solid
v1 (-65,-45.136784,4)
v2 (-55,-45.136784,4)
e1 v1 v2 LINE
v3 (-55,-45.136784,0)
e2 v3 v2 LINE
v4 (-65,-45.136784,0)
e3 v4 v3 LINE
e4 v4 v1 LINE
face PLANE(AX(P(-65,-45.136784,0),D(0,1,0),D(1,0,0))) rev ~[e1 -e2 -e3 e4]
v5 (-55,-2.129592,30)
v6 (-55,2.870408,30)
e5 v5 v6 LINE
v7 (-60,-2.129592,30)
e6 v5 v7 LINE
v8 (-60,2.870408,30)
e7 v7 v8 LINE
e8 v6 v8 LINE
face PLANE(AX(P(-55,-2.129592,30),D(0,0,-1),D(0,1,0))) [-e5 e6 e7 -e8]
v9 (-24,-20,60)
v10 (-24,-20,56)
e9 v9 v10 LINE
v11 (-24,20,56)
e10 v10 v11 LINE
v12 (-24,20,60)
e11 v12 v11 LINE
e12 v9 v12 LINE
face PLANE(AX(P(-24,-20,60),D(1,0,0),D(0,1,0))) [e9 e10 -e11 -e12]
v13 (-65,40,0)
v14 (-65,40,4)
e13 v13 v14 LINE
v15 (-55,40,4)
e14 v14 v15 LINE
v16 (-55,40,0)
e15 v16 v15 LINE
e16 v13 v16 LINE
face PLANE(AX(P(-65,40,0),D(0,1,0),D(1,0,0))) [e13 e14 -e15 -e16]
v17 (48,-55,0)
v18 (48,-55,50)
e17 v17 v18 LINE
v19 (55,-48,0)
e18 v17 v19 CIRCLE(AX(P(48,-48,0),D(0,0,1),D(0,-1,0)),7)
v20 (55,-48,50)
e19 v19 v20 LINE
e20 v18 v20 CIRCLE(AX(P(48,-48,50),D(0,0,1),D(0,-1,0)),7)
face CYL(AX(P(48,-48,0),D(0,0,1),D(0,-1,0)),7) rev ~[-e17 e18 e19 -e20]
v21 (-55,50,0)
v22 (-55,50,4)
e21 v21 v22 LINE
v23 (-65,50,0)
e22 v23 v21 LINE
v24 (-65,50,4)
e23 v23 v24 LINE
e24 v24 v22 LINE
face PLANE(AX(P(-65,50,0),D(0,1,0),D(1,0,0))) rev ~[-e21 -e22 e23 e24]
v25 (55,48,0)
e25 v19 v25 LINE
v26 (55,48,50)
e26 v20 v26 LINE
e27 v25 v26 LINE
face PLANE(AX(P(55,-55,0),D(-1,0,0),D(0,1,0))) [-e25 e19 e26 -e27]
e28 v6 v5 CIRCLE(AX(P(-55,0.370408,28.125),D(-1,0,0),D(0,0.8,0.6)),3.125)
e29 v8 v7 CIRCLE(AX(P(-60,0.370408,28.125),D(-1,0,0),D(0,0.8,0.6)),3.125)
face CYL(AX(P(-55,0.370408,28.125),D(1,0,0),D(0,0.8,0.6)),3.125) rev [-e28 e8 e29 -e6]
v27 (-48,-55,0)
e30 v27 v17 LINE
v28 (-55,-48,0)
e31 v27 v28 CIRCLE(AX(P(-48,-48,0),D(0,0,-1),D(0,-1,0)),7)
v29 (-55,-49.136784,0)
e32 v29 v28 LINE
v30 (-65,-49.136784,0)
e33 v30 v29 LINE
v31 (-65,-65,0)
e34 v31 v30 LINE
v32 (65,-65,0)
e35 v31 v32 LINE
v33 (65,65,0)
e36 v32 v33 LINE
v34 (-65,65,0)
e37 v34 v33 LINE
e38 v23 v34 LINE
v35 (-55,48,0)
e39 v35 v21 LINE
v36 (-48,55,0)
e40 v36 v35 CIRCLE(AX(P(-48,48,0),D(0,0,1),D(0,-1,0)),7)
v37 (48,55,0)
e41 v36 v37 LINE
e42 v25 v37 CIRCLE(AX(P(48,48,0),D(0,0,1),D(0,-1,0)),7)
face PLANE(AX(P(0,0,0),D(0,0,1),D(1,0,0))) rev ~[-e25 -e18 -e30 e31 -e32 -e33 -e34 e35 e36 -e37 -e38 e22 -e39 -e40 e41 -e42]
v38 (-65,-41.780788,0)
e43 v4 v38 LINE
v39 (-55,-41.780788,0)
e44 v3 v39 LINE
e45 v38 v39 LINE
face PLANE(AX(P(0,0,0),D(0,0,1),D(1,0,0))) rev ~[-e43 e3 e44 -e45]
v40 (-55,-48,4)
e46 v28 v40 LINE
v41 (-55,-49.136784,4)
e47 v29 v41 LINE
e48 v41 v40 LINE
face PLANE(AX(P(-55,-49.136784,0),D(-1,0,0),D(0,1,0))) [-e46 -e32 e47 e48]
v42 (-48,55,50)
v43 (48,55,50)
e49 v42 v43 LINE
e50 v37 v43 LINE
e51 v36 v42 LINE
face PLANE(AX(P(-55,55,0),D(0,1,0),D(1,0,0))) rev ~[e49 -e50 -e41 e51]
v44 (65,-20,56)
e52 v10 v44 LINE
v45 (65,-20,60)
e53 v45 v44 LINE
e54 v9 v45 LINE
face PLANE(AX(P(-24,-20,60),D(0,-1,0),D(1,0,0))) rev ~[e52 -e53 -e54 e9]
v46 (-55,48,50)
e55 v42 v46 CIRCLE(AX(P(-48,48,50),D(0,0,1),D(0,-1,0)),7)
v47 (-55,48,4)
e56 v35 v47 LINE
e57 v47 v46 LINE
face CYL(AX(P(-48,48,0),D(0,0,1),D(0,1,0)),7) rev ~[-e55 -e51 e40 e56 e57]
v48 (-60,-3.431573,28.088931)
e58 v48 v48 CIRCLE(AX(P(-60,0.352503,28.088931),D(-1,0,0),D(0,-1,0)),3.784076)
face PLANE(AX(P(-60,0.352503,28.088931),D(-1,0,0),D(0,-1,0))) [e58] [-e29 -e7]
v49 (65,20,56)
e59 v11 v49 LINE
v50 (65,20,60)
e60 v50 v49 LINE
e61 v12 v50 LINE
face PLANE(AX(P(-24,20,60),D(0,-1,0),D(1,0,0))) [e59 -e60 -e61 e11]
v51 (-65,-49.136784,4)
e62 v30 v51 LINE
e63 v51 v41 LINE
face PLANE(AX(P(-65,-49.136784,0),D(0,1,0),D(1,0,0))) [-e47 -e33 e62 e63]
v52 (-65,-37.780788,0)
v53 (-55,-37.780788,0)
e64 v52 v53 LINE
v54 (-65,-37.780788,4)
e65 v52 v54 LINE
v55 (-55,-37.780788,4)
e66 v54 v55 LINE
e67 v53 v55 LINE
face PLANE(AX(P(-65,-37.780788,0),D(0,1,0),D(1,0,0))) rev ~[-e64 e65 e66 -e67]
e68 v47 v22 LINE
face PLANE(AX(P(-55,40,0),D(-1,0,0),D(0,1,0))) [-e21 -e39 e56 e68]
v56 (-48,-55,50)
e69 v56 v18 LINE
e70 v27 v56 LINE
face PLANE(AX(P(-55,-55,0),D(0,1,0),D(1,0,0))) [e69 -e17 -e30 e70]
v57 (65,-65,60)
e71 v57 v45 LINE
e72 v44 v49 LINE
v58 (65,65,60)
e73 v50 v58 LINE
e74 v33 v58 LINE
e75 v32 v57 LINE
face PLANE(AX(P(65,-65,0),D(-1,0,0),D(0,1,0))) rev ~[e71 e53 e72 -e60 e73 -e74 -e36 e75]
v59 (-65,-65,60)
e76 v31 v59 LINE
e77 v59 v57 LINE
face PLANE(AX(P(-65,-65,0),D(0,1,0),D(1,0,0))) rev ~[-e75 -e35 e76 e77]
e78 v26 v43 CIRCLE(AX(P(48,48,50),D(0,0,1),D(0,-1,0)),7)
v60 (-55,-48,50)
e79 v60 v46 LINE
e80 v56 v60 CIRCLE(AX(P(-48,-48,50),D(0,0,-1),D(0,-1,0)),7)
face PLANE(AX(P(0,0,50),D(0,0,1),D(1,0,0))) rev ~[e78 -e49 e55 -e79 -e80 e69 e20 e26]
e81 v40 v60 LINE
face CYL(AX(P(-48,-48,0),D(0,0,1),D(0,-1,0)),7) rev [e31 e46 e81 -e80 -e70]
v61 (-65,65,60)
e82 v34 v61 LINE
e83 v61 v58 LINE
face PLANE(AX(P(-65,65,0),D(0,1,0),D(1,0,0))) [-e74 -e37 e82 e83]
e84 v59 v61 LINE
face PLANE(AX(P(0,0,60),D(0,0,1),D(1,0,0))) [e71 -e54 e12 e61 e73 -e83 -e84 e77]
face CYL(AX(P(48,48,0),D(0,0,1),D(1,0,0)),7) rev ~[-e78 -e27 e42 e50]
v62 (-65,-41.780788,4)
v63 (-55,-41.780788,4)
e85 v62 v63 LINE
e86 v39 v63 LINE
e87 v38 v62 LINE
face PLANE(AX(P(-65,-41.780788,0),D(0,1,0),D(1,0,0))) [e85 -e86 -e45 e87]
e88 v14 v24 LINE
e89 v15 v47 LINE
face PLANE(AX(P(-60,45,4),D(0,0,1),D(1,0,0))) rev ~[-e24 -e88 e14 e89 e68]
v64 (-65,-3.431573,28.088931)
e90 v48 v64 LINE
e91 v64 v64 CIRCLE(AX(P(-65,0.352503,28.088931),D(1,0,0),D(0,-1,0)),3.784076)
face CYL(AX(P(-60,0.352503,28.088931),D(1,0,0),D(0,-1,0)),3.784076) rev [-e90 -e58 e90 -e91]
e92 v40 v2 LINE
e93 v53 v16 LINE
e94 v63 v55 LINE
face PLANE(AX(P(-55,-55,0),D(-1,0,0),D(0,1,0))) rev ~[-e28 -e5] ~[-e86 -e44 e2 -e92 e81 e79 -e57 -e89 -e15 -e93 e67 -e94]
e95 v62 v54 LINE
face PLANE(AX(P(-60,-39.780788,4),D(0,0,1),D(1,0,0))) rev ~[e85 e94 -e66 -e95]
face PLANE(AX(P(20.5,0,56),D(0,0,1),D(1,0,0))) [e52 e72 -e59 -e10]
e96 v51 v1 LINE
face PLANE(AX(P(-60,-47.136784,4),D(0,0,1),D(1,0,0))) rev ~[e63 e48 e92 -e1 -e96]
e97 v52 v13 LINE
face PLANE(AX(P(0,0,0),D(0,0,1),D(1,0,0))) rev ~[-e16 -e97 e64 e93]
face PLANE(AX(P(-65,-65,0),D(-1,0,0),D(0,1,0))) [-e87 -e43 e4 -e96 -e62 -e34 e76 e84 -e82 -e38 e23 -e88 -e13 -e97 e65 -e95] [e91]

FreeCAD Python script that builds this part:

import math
import FreeCAD as App
import Part
import Sketcher

V = App.Vector
Q = App.Units.Quantity


def edges_at(feature, points):
    """Names of the edges that pass closest to the given points."""
    edges = feature.Shape.Edges
    near = lambda p: min(range(len(edges)), key=lambda i: edges[i].distToShape(Part.Vertex(*p))[0])
    return sorted({f"Edge{near(p) + 1}" for p in points})


def add_polygon(sketch, points):
    """Adds a closed chain of lines whose ends are joined by coincident constraints."""
    first, n = sketch.GeometryCount, len(points)
    for a, b in zip(points, points[1:] + points[:1]):
        sketch.addGeometry(Part.LineSegment(App.Vector(*a, 0), App.Vector(*b, 0)), False)
    for i in range(n):
        sketch.addConstraint(Sketcher.Constraint("Coincident", first + i, 2, first + (i + 1) % n, 1))

doc = App.newDocument("Part")
body = doc.addObject("PartDesign::Body", "Body")

# Sketch on XY plane
sketch1 = body.newObject("Sketcher::SketchObject", "Sketch")
sketch1.AttachmentSupport = (doc.getObject("XY_Plane"), [""])
sketch1.MapMode = "FlatFace"
add_polygon(sketch1, [(-65, 65), (-65, -65), (65, -65), (65, 65)])  # lines 0-3
sketch1.addConstraint(Sketcher.Constraint("Vertical", 0))
sketch1.addConstraint(Sketcher.Constraint("Horizontal", 1))
sketch1.addConstraint(Sketcher.Constraint("Vertical", 2))
sketch1.addConstraint(Sketcher.Constraint("Horizontal", 3))
sketch1.addConstraint(Sketcher.Constraint("Symmetric", 0, 2, 2, 2, -1, 1))
sketch1.addConstraint(Sketcher.Constraint("Equal", 3, 0))
sketch1.addConstraint(Sketcher.Constraint("DistanceX", 1, 1, 1, 2, Q("130 mm")))
pad1 = body.newObject("PartDesign::Pad", "Pad")
pad1.Profile = sketch1
pad1.Length = 60

# Sketch on XY plane
sketch2 = body.newObject("Sketcher::SketchObject", "Sketch001")
sketch2.AttachmentSupport = (doc.getObject("XY_Plane"), [""])
sketch2.MapMode = "FlatFace"
add_polygon(sketch2, [(-55, 55), (-55, -55), (55, -55), (55, 55)])  # lines 0-3
sketch2.addConstraint(Sketcher.Constraint("Vertical", 0))
sketch2.addConstraint(Sketcher.Constraint("Horizontal", 1))
sketch2.addConstraint(Sketcher.Constraint("Vertical", 2))
sketch2.addConstraint(Sketcher.Constraint("Horizontal", 3))
sketch2.addConstraint(Sketcher.Constraint("Symmetric", 0, 2, 2, 2, -1, 1))
sketch2.addConstraint(Sketcher.Constraint("Equal", 3, 0))
sketch2.addConstraint(Sketcher.Constraint("DistanceX", 1, 1, 1, 2, Q("110 mm")))
pocket1 = body.newObject("PartDesign::Pocket", "Pocket")
pocket1.Profile = sketch2
pocket1.Length = 50
pocket1.Reversed = True

# Sketch on XY plane
sketch3 = body.newObject("Sketcher::SketchObject", "Sketch002")
sketch3.AttachmentSupport = (doc.getObject("XY_Plane"), [""])
sketch3.MapMode = "FlatFace"
sketch3.AttachmentOffset = App.Placement(V(0, 0, 60), App.Rotation())
add_polygon(sketch3, [(-24, 20), (-24, -20), (65, -20), (65, 20)])  # lines 0-3
sketch3.addConstraint(Sketcher.Constraint("Vertical", 0))
sketch3.addConstraint(Sketcher.Constraint("Horizontal", 1))
sketch3.addConstraint(Sketcher.Constraint("Vertical", 2))
sketch3.addConstraint(Sketcher.Constraint("Horizontal", 3))
sketch3.addConstraint(Sketcher.Constraint("DistanceX", 1, 1, 1, 2, Q("89 mm")))
sketch3.addConstraint(Sketcher.Constraint("DistanceY", 0, 2, 0, 1, Q("40 mm")))
sketch3.addConstraint(Sketcher.Constraint("DistanceX", 0, 2, -1, 1, Q("24 mm")))
sketch3.addConstraint(Sketcher.Constraint("DistanceY", 0, 2, -1, 1, Q("20 mm")))
pocket2 = body.newObject("PartDesign::Pocket", "Pocket001")
pocket2.Profile = sketch3
pocket2.Length = 4
doc.recompute()

fillet = body.newObject("PartDesign::Fillet", "Fillet")
fillet.Base = (pocket2, edges_at(pocket2, [
    (55, -55, 25),
    (55, 55, 25),
    (-55, 55, 25),
    (-55, -55, 25),
]))
fillet.Radius = 7

# Sketch on XY plane
sketch4 = body.newObject("Sketcher::SketchObject", "Sketch003")
sketch4.AttachmentSupport = (doc.getObject("XY_Plane"), [""])
sketch4.MapMode = "FlatFace"
add_polygon(sketch4, [(-65, -37.8), (-65, -41.8), (-55, -41.8), (-55, -37.8)])  # lines 0-3
sketch4.addConstraint(Sketcher.Constraint("Vertical", 0))
sketch4.addConstraint(Sketcher.Constraint("Horizontal", 1))
sketch4.addConstraint(Sketcher.Constraint("Vertical", 2))
sketch4.addConstraint(Sketcher.Constraint("Horizontal", 3))
sketch4.addConstraint(Sketcher.Constraint("DistanceX", 1, 1, 1, 2, Q("10 mm")))
sketch4.addConstraint(Sketcher.Constraint("DistanceY", 0, 2, 0, 1, Q("4 mm")))
sketch4.addConstraint(Sketcher.Constraint("DistanceX", 0, 2, -1, 1, Q("65 mm")))
sketch4.addConstraint(Sketcher.Constraint("DistanceY", 0, 2, -1, 1, Q("41.780788 mm")))
pocket3 = body.newObject("PartDesign::Pocket", "Pocket002")
pocket3.Profile = sketch4
pocket3.Length = 4
pocket3.Reversed = True

# Sketch on XY plane
sketch5 = body.newObject("Sketcher::SketchObject", "Sketch004")
sketch5.AttachmentSupport = (doc.getObject("XY_Plane"), [""])
sketch5.MapMode = "FlatFace"
add_polygon(sketch5, [(-65, -45.1), (-65, -49.1), (-55, -49.1), (-55, -45.1)])  # lines 0-3
sketch5.addConstraint(Sketcher.Constraint("Vertical", 0))
sketch5.addConstraint(Sketcher.Constraint("Horizontal", 1))
sketch5.addConstraint(Sketcher.Constraint("Vertical", 2))
sketch5.addConstraint(Sketcher.Constraint("Horizontal", 3))
sketch5.addConstraint(Sketcher.Constraint("DistanceX", 1, 1, 1, 2, Q("10 mm")))
sketch5.addConstraint(Sketcher.Constraint("DistanceY", 0, 2, 0, 1, Q("4 mm")))
sketch5.addConstraint(Sketcher.Constraint("DistanceX", 0, 2, -1, 1, Q("65 mm")))
sketch5.addConstraint(Sketcher.Constraint("DistanceY", 0, 2, -1, 1, Q("49.136784 mm")))
pocket4 = body.newObject("PartDesign::Pocket", "Pocket003")
pocket4.Profile = sketch5
pocket4.Length = 4
pocket4.Reversed = True

# Sketch on XY plane
sketch6 = body.newObject("Sketcher::SketchObject", "Sketch005")
sketch6.AttachmentSupport = (doc.getObject("XY_Plane"), [""])
sketch6.MapMode = "FlatFace"
add_polygon(sketch6, [(-65, 50), (-65, 40), (-55, 40), (-55, 50)])  # lines 0-3
sketch6.addConstraint(Sketcher.Constraint("Vertical", 0))
sketch6.addConstraint(Sketcher.Constraint("Horizontal", 1))
sketch6.addConstraint(Sketcher.Constraint("Vertical", 2))
sketch6.addConstraint(Sketcher.Constraint("Horizontal", 3))
sketch6.addConstraint(Sketcher.Constraint("Equal", 3, 0))
sketch6.addConstraint(Sketcher.Constraint("DistanceX", 1, 1, 1, 2, Q("10 mm")))
sketch6.addConstraint(Sketcher.Constraint("DistanceX", 0, 2, -1, 1, Q("65 mm")))
sketch6.addConstraint(Sketcher.Constraint("DistanceY", -1, 1, 0, 2, Q("40 mm")))
pocket5 = body.newObject("PartDesign::Pocket", "Pocket004")
pocket5.Profile = sketch6
pocket5.Length = 4
pocket5.Reversed = True

# Sketch on YZ plane
sketch7 = body.newObject("Sketcher::SketchObject", "Sketch006")
sketch7.AttachmentSupport = (doc.getObject("YZ_Plane"), [""])
sketch7.MapMode = "FlatFace"
sketch7.AttachmentOffset = App.Placement(V(0, 0, -55), App.Rotation())
sketch7.addGeometry(Part.ArcOfCircle(Part.Circle(V(0.4, 28.1, 0), V(0, 0, 1), 3.1), math.radians(143), math.radians(397)), False)
sketch7.addGeometry(Part.LineSegment(V(-2.1, 30, 0), V(2.9, 30, 0)), False)
sketch7.addConstraint(Sketcher.Constraint("Coincident", 0, 1, 1, 1))
sketch7.addConstraint(Sketcher.Constraint("Coincident", 1, 2, 0, 2))
sketch7.addConstraint(Sketcher.Constraint("Horizontal", 1))
sketch7.addConstraint(Sketcher.Constraint("DistanceX", 1, 1, 1, 2, Q("5 mm")))
sketch7.addConstraint(Sketcher.Constraint("DistanceY", -1, 1, 0, 1, Q("30 mm")))
sketch7.addConstraint(Sketcher.Constraint("Radius", 0, Q("3.125 mm")))
sketch7.addConstraint(Sketcher.Constraint("DistanceX", -1, 1, 0, 3, Q("0.370408 mm")))
pocket6 = body.newObject("PartDesign::Pocket", "Pocket005")
pocket6.Profile = sketch7
pocket6.Length = 5

# Sketch on YZ plane
sketch8 = body.newObject("Sketcher::SketchObject", "Sketch007")
sketch8.AttachmentSupport = (doc.getObject("YZ_Plane"), [""])
sketch8.MapMode = "FlatFace"
sketch8.AttachmentOffset = App.Placement(V(0, 0, -60), App.Rotation())
sketch8.addGeometry(Part.Circle(V(0.4, 28.1, 0), V(0, 0, 1), 3.8), False)
sketch8.addConstraint(Sketcher.Constraint("Diameter", 0, Q("7.568151 mm")))
sketch8.addConstraint(Sketcher.Constraint("DistanceY", -1, 1, 0, 3, Q("28.088931 mm")))
sketch8.addConstraint(Sketcher.Constraint("DistanceX", -1, 1, 0, 3, Q("0.352503 mm")))
pocket7 = body.newObject("PartDesign::Pocket", "Pocket006")
pocket7.Profile = sketch8
pocket7.Length = 10

doc.recompute()
